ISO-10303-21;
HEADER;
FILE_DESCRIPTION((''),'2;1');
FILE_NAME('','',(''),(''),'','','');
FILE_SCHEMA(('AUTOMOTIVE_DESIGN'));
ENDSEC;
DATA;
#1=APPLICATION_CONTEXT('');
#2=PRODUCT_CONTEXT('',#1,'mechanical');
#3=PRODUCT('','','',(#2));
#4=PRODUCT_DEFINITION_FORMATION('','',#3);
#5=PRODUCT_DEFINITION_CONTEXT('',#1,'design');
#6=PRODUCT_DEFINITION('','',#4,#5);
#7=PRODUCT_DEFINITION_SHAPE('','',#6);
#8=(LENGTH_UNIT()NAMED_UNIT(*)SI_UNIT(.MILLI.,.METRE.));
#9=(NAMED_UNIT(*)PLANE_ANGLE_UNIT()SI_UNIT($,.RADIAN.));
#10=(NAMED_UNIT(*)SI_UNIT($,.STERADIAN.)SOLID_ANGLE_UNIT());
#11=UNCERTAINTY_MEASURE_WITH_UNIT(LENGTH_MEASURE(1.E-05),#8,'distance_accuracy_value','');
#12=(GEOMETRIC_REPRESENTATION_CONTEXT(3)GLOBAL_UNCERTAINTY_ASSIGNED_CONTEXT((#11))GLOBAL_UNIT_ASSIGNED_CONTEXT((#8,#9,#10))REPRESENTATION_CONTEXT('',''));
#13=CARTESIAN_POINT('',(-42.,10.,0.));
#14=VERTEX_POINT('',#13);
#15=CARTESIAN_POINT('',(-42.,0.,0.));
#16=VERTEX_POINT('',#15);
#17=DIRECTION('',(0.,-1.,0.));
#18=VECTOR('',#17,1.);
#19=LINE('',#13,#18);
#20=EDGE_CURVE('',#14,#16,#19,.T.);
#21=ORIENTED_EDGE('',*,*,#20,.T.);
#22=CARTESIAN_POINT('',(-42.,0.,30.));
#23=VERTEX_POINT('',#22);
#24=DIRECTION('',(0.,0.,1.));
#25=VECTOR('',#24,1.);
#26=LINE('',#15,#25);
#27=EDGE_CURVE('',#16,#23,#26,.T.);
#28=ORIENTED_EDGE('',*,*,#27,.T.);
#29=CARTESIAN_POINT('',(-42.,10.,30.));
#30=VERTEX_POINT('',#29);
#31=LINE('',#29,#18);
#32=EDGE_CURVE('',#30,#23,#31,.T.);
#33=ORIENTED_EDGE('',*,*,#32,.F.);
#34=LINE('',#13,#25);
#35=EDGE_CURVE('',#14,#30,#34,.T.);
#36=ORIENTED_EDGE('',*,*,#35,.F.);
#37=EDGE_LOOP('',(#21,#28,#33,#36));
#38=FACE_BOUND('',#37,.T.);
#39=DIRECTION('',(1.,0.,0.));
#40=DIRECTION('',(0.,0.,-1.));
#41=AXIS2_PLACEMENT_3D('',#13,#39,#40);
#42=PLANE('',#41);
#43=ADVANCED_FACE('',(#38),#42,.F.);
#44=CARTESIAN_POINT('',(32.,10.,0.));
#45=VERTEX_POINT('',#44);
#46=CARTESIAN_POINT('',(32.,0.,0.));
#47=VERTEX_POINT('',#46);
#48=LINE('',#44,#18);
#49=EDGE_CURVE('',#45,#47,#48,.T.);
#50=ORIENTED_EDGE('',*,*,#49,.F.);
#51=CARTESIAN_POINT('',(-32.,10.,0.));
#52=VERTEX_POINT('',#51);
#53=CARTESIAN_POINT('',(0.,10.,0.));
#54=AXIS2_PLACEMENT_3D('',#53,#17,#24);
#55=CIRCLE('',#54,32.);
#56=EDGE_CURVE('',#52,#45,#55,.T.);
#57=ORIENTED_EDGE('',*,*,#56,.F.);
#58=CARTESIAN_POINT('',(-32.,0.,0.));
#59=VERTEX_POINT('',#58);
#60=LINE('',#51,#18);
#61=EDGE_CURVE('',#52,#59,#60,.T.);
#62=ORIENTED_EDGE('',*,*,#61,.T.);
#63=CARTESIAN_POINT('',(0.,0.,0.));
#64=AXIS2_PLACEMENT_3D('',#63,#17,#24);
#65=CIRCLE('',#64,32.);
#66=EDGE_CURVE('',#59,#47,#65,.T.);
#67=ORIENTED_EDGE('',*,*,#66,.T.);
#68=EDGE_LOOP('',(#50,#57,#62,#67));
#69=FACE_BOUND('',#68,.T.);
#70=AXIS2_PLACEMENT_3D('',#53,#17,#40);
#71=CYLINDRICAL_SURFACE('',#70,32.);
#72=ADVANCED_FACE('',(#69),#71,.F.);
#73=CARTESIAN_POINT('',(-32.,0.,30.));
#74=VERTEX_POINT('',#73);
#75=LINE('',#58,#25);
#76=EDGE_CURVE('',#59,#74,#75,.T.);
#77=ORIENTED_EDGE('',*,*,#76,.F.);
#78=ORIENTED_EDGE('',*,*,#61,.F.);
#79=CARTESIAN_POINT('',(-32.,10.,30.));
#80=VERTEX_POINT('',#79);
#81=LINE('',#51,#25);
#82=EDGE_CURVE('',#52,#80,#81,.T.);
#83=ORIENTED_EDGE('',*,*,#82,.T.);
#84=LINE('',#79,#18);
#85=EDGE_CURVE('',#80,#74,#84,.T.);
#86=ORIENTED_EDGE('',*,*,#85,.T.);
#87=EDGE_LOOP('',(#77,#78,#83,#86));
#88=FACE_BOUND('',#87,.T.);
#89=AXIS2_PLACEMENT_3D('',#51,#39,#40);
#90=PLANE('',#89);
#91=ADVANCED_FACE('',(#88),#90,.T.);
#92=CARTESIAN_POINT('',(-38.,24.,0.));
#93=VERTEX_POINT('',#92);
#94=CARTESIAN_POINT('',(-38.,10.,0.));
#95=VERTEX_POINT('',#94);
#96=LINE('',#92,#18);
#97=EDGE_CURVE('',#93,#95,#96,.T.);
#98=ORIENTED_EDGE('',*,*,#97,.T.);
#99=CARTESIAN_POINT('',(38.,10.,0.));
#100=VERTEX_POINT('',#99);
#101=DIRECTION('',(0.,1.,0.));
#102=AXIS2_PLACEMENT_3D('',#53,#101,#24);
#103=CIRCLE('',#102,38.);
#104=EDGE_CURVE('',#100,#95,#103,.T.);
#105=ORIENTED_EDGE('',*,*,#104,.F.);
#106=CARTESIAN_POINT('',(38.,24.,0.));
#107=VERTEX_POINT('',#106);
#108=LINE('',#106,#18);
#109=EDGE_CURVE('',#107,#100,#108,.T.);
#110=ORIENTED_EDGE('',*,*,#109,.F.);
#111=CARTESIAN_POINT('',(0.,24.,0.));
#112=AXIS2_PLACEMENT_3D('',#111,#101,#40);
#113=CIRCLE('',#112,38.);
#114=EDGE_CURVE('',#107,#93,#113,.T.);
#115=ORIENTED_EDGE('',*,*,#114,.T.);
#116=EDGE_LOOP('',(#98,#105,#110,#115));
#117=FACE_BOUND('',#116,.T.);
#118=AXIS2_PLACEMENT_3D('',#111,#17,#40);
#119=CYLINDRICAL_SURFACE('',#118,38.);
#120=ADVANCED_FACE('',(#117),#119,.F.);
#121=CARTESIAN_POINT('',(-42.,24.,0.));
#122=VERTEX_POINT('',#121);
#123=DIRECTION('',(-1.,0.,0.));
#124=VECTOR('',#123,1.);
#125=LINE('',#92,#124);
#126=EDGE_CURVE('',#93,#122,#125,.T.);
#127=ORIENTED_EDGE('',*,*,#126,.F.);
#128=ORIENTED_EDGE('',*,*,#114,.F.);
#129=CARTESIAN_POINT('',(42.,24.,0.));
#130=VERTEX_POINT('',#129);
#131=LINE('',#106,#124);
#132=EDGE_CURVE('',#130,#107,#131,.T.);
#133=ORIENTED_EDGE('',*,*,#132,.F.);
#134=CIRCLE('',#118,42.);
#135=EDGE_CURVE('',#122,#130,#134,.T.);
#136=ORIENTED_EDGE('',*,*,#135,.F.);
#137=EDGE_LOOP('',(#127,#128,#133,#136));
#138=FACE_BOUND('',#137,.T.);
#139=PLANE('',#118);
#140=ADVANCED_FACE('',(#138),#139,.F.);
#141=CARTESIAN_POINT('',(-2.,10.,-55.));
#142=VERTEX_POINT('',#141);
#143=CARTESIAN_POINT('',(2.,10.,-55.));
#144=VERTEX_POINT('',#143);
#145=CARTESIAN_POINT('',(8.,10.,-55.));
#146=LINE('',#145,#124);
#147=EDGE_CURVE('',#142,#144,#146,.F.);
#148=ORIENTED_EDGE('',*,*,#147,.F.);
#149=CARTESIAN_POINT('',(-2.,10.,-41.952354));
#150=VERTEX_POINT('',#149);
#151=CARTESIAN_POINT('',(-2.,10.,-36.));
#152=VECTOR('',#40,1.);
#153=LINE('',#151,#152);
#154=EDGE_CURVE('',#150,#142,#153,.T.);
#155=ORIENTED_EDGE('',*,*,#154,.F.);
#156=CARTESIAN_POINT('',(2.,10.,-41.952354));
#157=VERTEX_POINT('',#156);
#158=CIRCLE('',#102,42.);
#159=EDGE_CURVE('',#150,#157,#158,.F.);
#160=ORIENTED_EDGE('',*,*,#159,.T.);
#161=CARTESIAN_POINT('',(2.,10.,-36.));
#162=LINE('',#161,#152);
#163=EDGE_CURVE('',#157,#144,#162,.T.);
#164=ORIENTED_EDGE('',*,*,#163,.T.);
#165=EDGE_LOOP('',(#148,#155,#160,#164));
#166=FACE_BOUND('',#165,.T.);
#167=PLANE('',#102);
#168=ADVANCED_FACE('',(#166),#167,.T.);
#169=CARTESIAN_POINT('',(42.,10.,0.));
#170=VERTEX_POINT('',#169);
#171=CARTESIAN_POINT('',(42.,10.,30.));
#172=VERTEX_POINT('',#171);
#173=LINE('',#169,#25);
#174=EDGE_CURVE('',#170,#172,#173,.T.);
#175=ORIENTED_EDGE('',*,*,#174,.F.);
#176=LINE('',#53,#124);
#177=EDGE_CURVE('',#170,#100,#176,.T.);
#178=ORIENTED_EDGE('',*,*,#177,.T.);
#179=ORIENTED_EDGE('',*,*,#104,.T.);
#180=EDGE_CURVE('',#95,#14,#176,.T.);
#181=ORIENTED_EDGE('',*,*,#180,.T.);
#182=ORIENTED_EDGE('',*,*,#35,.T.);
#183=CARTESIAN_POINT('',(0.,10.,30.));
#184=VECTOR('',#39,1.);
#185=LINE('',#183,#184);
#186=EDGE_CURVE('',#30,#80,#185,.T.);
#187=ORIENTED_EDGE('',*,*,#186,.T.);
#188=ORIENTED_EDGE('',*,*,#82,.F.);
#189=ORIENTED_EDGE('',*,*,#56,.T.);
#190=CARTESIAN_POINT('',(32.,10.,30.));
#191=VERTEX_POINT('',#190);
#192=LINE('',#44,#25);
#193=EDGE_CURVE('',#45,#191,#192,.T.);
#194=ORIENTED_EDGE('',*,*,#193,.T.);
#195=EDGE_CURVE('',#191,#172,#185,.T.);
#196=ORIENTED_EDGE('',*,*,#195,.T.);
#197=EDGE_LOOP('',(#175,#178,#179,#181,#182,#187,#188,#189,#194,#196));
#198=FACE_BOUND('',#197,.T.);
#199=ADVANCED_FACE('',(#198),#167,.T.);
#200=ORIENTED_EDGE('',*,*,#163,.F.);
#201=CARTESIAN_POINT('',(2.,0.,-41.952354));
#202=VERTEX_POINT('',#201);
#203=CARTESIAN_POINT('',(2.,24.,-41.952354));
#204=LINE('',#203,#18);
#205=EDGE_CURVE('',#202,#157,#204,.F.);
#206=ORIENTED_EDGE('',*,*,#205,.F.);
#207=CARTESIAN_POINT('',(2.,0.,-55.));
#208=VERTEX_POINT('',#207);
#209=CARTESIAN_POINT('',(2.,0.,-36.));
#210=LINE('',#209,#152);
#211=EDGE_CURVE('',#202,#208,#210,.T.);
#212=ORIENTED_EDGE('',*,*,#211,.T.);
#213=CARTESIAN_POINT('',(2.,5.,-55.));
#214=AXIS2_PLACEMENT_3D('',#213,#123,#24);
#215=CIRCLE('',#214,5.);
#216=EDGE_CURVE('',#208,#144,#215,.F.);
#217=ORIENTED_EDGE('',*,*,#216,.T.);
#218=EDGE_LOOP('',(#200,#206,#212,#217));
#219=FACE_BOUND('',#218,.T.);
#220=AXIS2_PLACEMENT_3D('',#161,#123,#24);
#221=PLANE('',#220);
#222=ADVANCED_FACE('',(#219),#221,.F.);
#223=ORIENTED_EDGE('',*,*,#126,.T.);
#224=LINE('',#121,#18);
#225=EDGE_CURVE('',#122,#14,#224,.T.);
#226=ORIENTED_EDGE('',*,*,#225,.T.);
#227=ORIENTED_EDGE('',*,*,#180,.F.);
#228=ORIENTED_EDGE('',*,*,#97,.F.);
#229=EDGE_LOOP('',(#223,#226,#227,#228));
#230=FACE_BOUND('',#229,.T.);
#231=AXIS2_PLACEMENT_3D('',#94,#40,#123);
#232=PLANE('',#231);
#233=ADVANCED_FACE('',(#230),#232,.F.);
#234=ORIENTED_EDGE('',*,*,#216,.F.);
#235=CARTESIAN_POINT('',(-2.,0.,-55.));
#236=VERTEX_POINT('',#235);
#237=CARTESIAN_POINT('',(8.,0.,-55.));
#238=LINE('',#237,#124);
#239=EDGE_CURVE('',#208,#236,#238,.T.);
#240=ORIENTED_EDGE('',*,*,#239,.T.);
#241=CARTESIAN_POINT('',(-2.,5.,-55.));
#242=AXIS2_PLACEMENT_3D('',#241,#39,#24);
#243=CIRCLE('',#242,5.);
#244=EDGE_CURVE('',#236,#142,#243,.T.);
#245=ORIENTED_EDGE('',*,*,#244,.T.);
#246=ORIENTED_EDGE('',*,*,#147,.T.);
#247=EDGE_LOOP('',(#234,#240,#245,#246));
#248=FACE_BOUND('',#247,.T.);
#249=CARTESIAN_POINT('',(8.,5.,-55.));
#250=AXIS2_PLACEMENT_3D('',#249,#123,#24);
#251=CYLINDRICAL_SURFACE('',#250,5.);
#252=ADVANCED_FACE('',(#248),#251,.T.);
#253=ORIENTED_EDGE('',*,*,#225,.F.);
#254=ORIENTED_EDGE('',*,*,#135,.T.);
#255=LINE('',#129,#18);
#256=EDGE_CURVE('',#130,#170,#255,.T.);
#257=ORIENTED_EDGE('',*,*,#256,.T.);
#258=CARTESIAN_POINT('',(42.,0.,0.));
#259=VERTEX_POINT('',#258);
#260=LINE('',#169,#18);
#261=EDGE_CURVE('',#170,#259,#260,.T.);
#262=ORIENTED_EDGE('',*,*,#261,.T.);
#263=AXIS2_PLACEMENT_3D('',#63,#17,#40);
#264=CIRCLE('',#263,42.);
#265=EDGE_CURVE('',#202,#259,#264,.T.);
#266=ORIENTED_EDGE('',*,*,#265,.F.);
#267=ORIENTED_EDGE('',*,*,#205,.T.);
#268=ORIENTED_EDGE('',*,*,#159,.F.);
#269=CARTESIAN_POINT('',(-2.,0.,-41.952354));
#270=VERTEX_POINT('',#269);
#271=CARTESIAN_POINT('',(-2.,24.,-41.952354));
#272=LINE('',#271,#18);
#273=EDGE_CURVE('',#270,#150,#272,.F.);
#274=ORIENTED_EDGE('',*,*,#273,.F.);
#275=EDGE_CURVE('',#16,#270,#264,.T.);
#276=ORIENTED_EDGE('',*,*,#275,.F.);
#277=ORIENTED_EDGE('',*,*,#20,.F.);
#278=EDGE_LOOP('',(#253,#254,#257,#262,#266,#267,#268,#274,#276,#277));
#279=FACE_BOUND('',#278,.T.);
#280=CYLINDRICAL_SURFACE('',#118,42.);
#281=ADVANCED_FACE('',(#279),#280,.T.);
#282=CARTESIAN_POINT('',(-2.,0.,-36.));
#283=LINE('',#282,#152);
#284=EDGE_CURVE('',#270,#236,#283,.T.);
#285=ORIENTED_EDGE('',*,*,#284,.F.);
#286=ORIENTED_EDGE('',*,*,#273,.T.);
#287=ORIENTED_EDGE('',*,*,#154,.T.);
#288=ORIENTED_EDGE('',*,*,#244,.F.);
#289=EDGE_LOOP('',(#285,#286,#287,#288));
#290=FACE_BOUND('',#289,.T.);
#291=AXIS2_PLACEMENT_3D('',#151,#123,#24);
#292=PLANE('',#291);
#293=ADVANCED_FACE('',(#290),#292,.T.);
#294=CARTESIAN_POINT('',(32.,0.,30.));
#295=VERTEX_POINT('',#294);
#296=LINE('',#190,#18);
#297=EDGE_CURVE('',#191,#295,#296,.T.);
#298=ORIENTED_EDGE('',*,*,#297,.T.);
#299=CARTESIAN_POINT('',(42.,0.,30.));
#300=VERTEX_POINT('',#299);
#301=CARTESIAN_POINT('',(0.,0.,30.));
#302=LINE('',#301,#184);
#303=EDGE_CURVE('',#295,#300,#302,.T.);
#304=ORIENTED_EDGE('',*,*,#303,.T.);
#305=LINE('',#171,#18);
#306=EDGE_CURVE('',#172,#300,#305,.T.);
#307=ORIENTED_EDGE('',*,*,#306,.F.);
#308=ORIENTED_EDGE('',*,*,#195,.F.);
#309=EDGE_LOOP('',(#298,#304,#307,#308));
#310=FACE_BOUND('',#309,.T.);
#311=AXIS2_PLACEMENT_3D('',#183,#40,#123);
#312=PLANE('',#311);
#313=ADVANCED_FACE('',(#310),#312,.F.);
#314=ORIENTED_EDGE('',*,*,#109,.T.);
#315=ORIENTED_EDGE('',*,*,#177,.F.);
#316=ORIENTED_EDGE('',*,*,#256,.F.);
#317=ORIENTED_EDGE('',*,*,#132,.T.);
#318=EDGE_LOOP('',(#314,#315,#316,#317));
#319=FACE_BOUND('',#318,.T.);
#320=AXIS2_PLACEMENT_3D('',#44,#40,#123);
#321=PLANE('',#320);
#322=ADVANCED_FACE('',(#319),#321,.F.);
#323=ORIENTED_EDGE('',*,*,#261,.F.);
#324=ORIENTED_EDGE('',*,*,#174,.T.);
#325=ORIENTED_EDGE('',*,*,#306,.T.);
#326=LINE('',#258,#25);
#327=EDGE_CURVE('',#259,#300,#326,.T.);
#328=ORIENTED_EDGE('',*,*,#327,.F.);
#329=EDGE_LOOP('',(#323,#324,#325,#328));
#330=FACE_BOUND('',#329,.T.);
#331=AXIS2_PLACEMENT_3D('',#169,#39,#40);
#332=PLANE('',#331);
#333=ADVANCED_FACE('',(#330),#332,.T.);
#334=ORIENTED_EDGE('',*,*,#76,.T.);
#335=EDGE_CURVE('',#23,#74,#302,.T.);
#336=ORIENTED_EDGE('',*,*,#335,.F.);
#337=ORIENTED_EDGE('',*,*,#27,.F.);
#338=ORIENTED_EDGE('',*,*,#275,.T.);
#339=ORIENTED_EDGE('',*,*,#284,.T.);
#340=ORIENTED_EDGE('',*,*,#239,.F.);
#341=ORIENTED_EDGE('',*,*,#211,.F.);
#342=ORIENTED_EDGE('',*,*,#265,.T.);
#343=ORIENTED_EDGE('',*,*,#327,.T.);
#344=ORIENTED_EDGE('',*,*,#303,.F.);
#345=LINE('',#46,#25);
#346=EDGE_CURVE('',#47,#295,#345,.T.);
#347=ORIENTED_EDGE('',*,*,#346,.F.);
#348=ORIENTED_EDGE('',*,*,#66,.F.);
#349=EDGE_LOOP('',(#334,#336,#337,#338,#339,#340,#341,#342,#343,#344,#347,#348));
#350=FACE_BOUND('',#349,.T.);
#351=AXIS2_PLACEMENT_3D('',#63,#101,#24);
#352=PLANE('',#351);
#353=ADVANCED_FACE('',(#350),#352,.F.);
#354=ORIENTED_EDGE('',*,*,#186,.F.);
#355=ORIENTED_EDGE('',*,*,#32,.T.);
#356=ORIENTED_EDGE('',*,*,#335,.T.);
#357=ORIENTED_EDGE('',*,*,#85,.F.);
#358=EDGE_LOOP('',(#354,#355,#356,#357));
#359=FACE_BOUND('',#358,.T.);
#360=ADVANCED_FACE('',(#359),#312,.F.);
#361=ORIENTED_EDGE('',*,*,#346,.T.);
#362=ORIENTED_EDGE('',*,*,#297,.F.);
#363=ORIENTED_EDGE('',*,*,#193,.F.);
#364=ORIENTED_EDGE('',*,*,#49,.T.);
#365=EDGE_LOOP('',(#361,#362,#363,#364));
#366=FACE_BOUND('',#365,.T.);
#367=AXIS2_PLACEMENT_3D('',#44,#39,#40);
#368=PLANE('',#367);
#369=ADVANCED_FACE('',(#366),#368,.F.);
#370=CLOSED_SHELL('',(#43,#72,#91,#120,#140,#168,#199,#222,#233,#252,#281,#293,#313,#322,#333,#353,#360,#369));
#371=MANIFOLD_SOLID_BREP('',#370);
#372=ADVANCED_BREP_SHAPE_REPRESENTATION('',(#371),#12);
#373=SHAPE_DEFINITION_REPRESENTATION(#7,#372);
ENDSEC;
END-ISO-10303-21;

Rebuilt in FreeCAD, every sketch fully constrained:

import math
import FreeCAD as App
import Part
import Sketcher
from FreeCAD import Vector


def add_polygon(sketch, points):
    """Adds a closed chain of lines whose ends are joined by coincident constraints."""
    first, n = sketch.GeometryCount, len(points)
    for a, b in zip(points, points[1:] + points[:1]):
        sketch.addGeometry(Part.LineSegment(App.Vector(*a, 0), App.Vector(*b, 0)), False)
    for i in range(n):
        sketch.addConstraint(Sketcher.Constraint("Coincident", first + i, 2, first + (i + 1) % n, 1))

doc = App.newDocument("Part")
params = doc.addObject("Spreadsheet::Sheet", "Params")
for row, (alias, value) in enumerate([
    ("sketch1_radius", "32 mm"),
    ("sketch1_radius2", "38 mm"),
    ("pad1_length", "10 mm"),
    ("sketch2_radius", "42 mm"),
    ("sketch2_radius2", "38 mm"),
    ("pad2_length", "24 mm"),
    ("sketch3_width", "4 mm"),
    ("sketch3_width2", "10 mm"),
    ("sketch3_height", "24 mm"),
    ("sketch3_height2", "30 mm"),
    ("pad3_length", "10 mm"),
    ("sketch4_radius", "5 mm"),
    ("pocket1_length", "10 mm"),
], start=1):
    params.set(f"A{row}", alias)
    params.set(f"B{row}", "=" + value)
    params.setAlias(f"B{row}", alias)

body = doc.addObject("PartDesign::Body", "Body")

sketch1 = doc.addObject("Sketcher::SketchObject", "Sketch")
body.addObject(sketch1)
sketch1.AttachmentSupport = (doc.XZ_Plane, [""])
sketch1.MapMode = "FlatFace"
sketch1.addGeometry([
    Part.LineSegment(Vector(-38, 0, 0), Vector(-32, 0, 0)),
    Part.ArcOfCircle(Part.Circle(Vector(0, 0, 0), Vector(0, 0, 1), 32), math.radians(180), math.radians(360)),
    Part.LineSegment(Vector(32, 0, 0), Vector(38, 0, 0)),
    Part.ArcOfCircle(Part.Circle(Vector(0, 0, 0), Vector(0, 0, 1), 38), math.radians(180), math.radians(360)),
], False)
sketch1.addConstraint([
    Sketcher.Constraint("Coincident", 0, 2, 1, 1),
    Sketcher.Constraint("Coincident", 1, 2, 2, 1),
    Sketcher.Constraint("Coincident", 2, 2, 3, 2),
    Sketcher.Constraint("Coincident", 3, 1, 0, 1),
    Sketcher.Constraint("Horizontal", 0),
    Sketcher.Constraint("Horizontal", 2),
    Sketcher.Constraint("Coincident", 1, 3, -1, 1),
    Sketcher.Constraint("Coincident", 3, 3, -1, 1),
    Sketcher.Constraint("PointOnObject", 0, 2, -1),
    Sketcher.Constraint("PointOnObject", 1, 2, -1),
    Sketcher.Constraint("Radius", 1, 32.0),
    Sketcher.Constraint("Radius", 3, 38.0),
])
sketch1.setExpression("Constraints[10]", "Params.sketch1_radius")
sketch1.setExpression("Constraints[11]", "Params.sketch1_radius2")
pad1 = doc.addObject("PartDesign::Pad", "Pad")
body.addObject(pad1)
pad1.Profile = sketch1
pad1.setExpression("Length", "Params.pad1_length")
pad1.Reversed = True

sketch2 = doc.addObject("Sketcher::SketchObject", "Sketch001")
body.addObject(sketch2)
sketch2.AttachmentSupport = (doc.XZ_Plane, [""])
sketch2.MapMode = "FlatFace"
sketch2.addGeometry([
    Part.LineSegment(Vector(-38, 0, 0), Vector(-42, 0, 0)),
    Part.ArcOfCircle(Part.Circle(Vector(0, 0, 0), Vector(0, 0, 1), 42), math.radians(180), math.radians(360)),
    Part.LineSegment(Vector(42, 0, 0), Vector(38, 0, 0)),
    Part.ArcOfCircle(Part.Circle(Vector(0, 0, 0), Vector(0, 0, 1), 38), math.radians(180), math.radians(360)),
], False)
sketch2.addConstraint([
    Sketcher.Constraint("Coincident", 0, 2, 1, 1),
    Sketcher.Constraint("Coincident", 1, 2, 2, 1),
    Sketcher.Constraint("Coincident", 2, 2, 3, 2),
    Sketcher.Constraint("Coincident", 3, 1, 0, 1),
    Sketcher.Constraint("Horizontal", 0),
    Sketcher.Constraint("Horizontal", 2),
    Sketcher.Constraint("Coincident", 1, 3, -1, 1),
    Sketcher.Constraint("Coincident", 3, 3, -1, 1),
    Sketcher.Constraint("PointOnObject", 0, 2, -1),
    Sketcher.Constraint("PointOnObject", 1, 2, -1),
    Sketcher.Constraint("Radius", 1, 42.0),
    Sketcher.Constraint("Radius", 3, 38.0),
])
sketch2.setExpression("Constraints[10]", "Params.sketch2_radius")
sketch2.setExpression("Constraints[11]", "Params.sketch2_radius2")
pad2 = doc.addObject("PartDesign::Pad", "Pad001")
body.addObject(pad2)
pad2.Profile = sketch2
pad2.setExpression("Length", "Params.pad2_length")
pad2.Reversed = True

sketch3 = doc.addObject("Sketcher::SketchObject", "Sketch002")
body.addObject(sketch3)
sketch3.AttachmentSupport = (doc.XZ_Plane, [""])
sketch3.MapMode = "FlatFace"
add_polygon(sketch3, [(-2, -36), (-2, -60), (2, -60), (2, -36)])
add_polygon(sketch3, [(-42, 30), (-42, 0), (-32, 0), (-32, 30)])
add_polygon(sketch3, [(32, 30), (32, 0), (42, 0), (42, 30)])
sketch3.addConstraint([
    Sketcher.Constraint("Vertical", 0),
    Sketcher.Constraint("Horizontal", 1),
    Sketcher.Constraint("Vertical", 2),
    Sketcher.Constraint("Horizontal", 3),
    Sketcher.Constraint("Vertical", 4),
    Sketcher.Constraint("Horizontal", 5),
    Sketcher.Constraint("Vertical", 6),
    Sketcher.Constraint("Horizontal", 7),
    Sketcher.Constraint("Vertical", 8),
    Sketcher.Constraint("Horizontal", 9),
    Sketcher.Constraint("Vertical", 10),
    Sketcher.Constraint("Horizontal", 11),
    Sketcher.Constraint("Symmetric", 5, 2, 8, 2, -1, 1),
    Sketcher.Constraint("Symmetric", 4, 2, 9, 2, -2),
    Sketcher.Constraint("Horizontal", 7, 2, 10, 2),
    Sketcher.Constraint("DistanceX", 1, 1, 1, 2, 4.0),
    Sketcher.Constraint("DistanceX", 5, 1, 5, 2, 10.0),
    Sketcher.Constraint("DistanceY", 0, 2, 0, 1, 24.0),
    Sketcher.Constraint("DistanceY", 4, 2, 4, 1, 30.0),
    Sketcher.Constraint("DistanceX", 0, 2, -1, 1, 2.0),
    Sketcher.Constraint("DistanceY", 0, 2, -1, 1, 60.0),
    Sketcher.Constraint("DistanceX", 4, 2, -1, 1, 42.0),
])
sketch3.setExpression("Constraints[27]", "Params.sketch3_width")
sketch3.setExpression("Constraints[28]", "Params.sketch3_width2")
sketch3.setExpression("Constraints[29]", "Params.sketch3_height")
sketch3.setExpression("Constraints[30]", "Params.sketch3_height2")
pad3 = doc.addObject("PartDesign::Pad", "Pad002")
body.addObject(pad3)
pad3.Profile = sketch3
pad3.setExpression("Length", "Params.pad3_length")
pad3.Reversed = True

sketch4 = doc.addObject("Sketcher::SketchObject", "Sketch003")
body.addObject(sketch4)
sketch4.AttachmentSupport = (doc.YZ_Plane, [""])
sketch4.MapMode = "FlatFace"
sketch4.AttachmentOffset = App.Placement(Vector(0, 0, -2), App.Rotation())
sketch4.addGeometry([
    Part.LineSegment(Vector(10, -55, 0), Vector(10, -63.23044, 0)),
    Part.LineSegment(Vector(10, -63.23044, 0), Vector(0, -63.23044, 0)),
    Part.LineSegment(Vector(0, -63.23044, 0), Vector(0, -55, 0)),
    Part.ArcOfCircle(Part.Circle(Vector(5, -55, 0), Vector(0, 0, 1), 5), math.radians(180), math.radians(360)),
], False)
sketch4.addConstraint([
    Sketcher.Constraint("Coincident", 0, 2, 1, 1),
    Sketcher.Constraint("Coincident", 1, 2, 2, 1),
    Sketcher.Constraint("Tangent", 2, 2, 3, 1),
    Sketcher.Constraint("Tangent", 3, 2, 0, 1),
    Sketcher.Constraint("Vertical", 0),
    Sketcher.Constraint("Horizontal", 1),
    Sketcher.Constraint("Vertical", 2),
    Sketcher.Constraint("PointOnObject", 1, 2, -2),
    Sketcher.Constraint("Radius", 3, 5.0),
    Sketcher.Constraint("DistanceY", 3, 3, -1, 1, 55.0),
    Sketcher.Constraint("DistanceY", 0, 2, 0, 1, 8.23044),
])
sketch4.setExpression("Constraints[8]", "Params.sketch4_radius")
pocket1 = doc.addObject("PartDesign::Pocket", "Pocket")
body.addObject(pocket1)
pocket1.Profile = sketch4
pocket1.setExpression("Length", "Params.pocket1_length")
pocket1.Reversed = True

doc.recompute()
